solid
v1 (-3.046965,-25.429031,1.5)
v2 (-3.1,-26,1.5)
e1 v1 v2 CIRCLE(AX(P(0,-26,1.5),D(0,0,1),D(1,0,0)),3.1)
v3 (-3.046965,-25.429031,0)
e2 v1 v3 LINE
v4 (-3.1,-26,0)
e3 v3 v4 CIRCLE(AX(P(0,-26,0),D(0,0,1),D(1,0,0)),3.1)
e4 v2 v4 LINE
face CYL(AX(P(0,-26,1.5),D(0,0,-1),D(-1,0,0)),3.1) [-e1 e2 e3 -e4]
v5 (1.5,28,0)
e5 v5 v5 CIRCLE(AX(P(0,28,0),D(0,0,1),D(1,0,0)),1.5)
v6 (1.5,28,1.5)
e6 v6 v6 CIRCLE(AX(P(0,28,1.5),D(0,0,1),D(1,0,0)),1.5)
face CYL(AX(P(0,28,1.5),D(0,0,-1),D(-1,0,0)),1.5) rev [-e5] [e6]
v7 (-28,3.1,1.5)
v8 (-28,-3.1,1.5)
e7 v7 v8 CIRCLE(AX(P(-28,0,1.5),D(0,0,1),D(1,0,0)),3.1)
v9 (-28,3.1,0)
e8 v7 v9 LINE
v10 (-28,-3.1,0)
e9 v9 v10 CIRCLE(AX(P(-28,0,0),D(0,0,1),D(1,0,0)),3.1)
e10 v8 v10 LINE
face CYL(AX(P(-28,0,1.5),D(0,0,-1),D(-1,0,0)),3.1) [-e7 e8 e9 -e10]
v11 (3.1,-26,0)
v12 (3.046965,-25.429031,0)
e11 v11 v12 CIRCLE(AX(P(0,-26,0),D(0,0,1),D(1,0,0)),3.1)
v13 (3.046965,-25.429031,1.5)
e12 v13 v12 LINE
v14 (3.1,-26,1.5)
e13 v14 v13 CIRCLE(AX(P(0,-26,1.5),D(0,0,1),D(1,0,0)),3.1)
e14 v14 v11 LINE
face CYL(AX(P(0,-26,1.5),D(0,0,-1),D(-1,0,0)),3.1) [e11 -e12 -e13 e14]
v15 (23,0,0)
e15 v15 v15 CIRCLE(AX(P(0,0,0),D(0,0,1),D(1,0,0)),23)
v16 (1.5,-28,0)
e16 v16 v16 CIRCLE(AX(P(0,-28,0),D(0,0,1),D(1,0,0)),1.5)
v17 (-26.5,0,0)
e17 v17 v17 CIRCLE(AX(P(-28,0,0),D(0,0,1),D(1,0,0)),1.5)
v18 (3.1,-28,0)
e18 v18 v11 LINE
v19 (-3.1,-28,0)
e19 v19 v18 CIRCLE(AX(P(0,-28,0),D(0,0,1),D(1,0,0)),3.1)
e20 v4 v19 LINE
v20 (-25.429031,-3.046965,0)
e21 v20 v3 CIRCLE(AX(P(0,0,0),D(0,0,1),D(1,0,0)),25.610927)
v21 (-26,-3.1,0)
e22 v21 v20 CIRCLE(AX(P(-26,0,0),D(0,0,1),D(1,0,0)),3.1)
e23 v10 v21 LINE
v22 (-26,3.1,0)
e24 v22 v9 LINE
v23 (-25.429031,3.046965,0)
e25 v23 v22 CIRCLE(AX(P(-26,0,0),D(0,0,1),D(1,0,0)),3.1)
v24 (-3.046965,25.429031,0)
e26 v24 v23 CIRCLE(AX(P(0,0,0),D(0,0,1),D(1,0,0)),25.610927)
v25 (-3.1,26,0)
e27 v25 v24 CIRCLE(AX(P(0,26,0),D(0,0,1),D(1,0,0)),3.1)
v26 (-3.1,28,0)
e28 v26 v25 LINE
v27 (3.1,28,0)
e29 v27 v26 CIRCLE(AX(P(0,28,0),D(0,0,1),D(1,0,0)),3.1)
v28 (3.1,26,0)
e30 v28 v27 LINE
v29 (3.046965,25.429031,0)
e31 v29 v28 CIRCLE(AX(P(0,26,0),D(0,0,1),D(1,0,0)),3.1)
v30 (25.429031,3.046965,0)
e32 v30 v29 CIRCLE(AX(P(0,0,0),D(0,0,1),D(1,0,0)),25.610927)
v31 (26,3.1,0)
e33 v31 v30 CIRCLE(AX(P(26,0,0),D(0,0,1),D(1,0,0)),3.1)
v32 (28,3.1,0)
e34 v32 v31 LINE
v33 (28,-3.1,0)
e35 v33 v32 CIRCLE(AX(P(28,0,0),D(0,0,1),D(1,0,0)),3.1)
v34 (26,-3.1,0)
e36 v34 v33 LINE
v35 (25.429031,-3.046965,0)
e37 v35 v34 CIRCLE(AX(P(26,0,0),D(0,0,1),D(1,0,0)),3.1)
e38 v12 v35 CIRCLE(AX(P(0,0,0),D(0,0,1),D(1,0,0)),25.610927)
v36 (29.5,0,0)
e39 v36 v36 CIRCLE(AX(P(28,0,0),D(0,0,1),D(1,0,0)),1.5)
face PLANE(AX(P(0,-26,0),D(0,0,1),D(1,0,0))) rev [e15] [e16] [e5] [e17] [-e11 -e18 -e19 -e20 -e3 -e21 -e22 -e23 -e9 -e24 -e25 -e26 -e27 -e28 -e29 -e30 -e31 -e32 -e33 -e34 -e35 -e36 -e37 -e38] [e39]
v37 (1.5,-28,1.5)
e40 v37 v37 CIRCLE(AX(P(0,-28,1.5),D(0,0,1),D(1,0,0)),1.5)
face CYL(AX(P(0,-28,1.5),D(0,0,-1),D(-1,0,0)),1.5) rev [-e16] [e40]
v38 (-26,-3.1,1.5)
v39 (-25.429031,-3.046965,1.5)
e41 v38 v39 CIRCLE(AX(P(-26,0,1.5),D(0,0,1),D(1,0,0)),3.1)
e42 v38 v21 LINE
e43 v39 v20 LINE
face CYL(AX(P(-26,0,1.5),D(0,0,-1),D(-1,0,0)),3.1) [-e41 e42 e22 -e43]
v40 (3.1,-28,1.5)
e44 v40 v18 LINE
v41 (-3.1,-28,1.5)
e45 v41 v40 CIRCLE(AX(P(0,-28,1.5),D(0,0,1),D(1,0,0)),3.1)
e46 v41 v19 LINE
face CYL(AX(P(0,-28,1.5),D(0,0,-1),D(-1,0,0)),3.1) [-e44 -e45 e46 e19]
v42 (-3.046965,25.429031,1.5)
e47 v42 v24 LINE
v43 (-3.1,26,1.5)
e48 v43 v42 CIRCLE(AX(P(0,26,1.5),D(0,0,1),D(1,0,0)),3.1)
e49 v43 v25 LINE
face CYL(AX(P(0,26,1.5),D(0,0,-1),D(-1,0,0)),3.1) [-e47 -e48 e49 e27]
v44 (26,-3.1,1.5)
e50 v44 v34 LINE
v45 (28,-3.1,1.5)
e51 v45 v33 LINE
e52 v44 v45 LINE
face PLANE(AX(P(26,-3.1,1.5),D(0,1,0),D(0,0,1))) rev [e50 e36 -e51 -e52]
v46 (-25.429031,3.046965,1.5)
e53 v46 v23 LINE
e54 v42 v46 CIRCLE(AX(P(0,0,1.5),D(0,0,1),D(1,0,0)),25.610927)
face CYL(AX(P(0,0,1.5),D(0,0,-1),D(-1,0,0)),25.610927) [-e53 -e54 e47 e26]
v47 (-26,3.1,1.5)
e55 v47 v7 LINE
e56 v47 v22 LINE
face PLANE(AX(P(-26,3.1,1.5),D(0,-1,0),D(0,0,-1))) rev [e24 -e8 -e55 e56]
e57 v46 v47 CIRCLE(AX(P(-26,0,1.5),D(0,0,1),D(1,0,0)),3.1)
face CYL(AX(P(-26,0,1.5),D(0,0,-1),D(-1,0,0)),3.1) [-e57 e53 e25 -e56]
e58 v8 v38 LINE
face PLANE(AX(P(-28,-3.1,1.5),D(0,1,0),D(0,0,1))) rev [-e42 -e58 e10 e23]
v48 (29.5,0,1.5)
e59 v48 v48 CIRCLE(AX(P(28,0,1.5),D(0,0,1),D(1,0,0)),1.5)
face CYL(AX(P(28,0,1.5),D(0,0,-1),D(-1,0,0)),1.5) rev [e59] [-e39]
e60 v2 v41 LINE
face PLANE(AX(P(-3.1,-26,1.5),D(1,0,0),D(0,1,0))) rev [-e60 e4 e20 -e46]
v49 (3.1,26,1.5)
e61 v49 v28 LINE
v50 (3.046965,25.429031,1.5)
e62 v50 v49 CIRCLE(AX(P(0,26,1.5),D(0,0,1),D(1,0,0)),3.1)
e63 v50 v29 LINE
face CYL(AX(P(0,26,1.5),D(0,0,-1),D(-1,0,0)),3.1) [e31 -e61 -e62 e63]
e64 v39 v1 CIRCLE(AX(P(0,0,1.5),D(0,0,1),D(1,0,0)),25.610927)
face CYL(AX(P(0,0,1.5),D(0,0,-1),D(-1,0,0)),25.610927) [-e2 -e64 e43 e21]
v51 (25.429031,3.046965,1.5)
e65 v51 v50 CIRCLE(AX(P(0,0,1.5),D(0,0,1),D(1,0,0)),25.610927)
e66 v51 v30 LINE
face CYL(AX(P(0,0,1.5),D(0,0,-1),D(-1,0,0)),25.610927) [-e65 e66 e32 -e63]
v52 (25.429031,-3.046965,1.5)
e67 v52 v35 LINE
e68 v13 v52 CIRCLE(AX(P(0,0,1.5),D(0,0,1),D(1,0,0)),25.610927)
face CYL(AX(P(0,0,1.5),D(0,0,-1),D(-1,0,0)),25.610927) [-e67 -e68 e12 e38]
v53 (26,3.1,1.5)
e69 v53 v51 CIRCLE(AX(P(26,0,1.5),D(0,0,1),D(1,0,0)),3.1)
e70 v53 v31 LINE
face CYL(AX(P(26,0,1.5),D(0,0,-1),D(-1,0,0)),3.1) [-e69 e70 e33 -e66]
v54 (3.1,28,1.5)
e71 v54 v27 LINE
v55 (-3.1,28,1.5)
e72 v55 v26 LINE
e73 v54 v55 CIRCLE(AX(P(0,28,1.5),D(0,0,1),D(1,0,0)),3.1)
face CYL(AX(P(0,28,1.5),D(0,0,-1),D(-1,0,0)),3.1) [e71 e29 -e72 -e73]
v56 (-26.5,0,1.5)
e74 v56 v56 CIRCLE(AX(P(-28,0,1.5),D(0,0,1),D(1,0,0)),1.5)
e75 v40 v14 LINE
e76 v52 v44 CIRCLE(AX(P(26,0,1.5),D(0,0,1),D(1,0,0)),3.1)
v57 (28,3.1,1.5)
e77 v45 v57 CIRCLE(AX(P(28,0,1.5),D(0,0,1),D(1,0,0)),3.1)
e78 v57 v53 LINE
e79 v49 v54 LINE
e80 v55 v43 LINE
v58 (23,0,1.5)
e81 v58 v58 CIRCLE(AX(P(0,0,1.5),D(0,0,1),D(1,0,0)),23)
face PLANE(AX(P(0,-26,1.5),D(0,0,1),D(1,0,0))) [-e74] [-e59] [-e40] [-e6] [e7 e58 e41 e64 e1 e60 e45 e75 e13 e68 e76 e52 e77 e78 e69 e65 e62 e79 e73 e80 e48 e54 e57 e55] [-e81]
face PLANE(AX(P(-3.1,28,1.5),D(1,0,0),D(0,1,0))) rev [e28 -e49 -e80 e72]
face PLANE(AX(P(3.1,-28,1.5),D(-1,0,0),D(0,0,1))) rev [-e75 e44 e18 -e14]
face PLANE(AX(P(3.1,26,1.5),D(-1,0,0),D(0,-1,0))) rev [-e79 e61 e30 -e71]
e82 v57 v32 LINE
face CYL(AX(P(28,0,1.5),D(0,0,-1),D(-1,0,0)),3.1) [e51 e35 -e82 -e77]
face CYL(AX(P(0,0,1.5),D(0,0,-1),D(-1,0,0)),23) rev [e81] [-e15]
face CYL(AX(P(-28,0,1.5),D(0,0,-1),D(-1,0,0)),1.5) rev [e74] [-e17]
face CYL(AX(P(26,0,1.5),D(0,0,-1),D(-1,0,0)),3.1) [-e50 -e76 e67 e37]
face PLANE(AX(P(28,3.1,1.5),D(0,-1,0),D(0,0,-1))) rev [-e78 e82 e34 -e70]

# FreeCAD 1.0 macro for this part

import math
import FreeCAD as App
import Part
import Sketcher
Q = App.Units.Quantity

doc = App.newDocument("Part")
body = doc.addObject("PartDesign::Body", "Body")

# Sketch on XY plane
sketch1 = body.newObject("Sketcher::SketchObject", "Sketch")
sketch1.AttachmentSupport = (doc.getObject("XY_Plane"), [""])
sketch1.MapMode = "FlatFace"
sketch1.addGeometry(Part.LineSegment(App.Vector(26, -3.1, 0), App.Vector(28, -3.1, 0)), False)
sketch1.addGeometry(Part.ArcOfCircle(Part.Circle(App.Vector(28, 0, 0), App.Vector(0, 0, 1), 3.1), math.radians(-90), math.radians(90)), False)
sketch1.addGeometry(Part.LineSegment(App.Vector(28, 3.1, 0), App.Vector(26, 3.1, 0)), False)
sketch1.addGeometry(Part.ArcOfCircle(Part.Circle(App.Vector(26, 0, 0), App.Vector(0, 0, 1), 3.1), math.radians(90), math.radians(100.613541)), False)
sketch1.addGeometry(Part.ArcOfCircle(Part.Circle(App.Vector(0, 0, 0), App.Vector(0, 0, 1), 25.610927), math.radians(6.832736), math.radians(83.167264)), False)
sketch1.addGeometry(Part.ArcOfCircle(Part.Circle(App.Vector(0, 26, 0), App.Vector(0, 0, 1), 3.1), math.radians(-10.613541), math.radians(0)), False)
sketch1.addGeometry(Part.LineSegment(App.Vector(3.1, 26, 0), App.Vector(3.1, 28, 0)), False)
sketch1.addGeometry(Part.ArcOfCircle(Part.Circle(App.Vector(0, 28, 0), App.Vector(0, 0, 1), 3.1), math.radians(0), math.radians(180)), False)
sketch1.addGeometry(Part.LineSegment(App.Vector(-3.1, 28, 0), App.Vector(-3.1, 26, 0)), False)
sketch1.addGeometry(Part.ArcOfCircle(Part.Circle(App.Vector(0, 26, 0), App.Vector(0, 0, 1), 3.1), math.radians(-180), math.radians(-169.386459)), False)
sketch1.addGeometry(Part.ArcOfCircle(Part.Circle(App.Vector(0, 0, 0), App.Vector(0, 0, 1), 25.610927), math.radians(96.832736), math.radians(173.167264)), False)
sketch1.addGeometry(Part.ArcOfCircle(Part.Circle(App.Vector(-26, 0, 0), App.Vector(0, 0, 1), 3.1), math.radians(79.386459), math.radians(90)), False)
sketch1.addGeometry(Part.LineSegment(App.Vector(-26, 3.1, 0), App.Vector(-28, 3.1, 0)), False)
sketch1.addGeometry(Part.ArcOfCircle(Part.Circle(App.Vector(-28, 0, 0), App.Vector(0, 0, 1), 3.1), math.radians(90), math.radians(270)), False)
sketch1.addGeometry(Part.LineSegment(App.Vector(-28, -3.1, 0), App.Vector(-26, -3.1, 0)), False)
sketch1.addGeometry(Part.ArcOfCircle(Part.Circle(App.Vector(-26, 0, 0), App.Vector(0, 0, 1), 3.1), math.radians(-90), math.radians(-79.386459)), False)
sketch1.addGeometry(Part.ArcOfCircle(Part.Circle(App.Vector(0, 0, 0), App.Vector(0, 0, 1), 25.610927), math.radians(-173.167264), math.radians(-96.832736)), False)
sketch1.addGeometry(Part.ArcOfCircle(Part.Circle(App.Vector(0, -26, 0), App.Vector(0, 0, 1), 3.1), math.radians(169.386459), math.radians(180)), False)
sketch1.addGeometry(Part.LineSegment(App.Vector(-3.1, -26, 0), App.Vector(-3.1, -28, 0)), False)
sketch1.addGeometry(Part.ArcOfCircle(Part.Circle(App.Vector(0, -28, 0), App.Vector(0, 0, 1), 3.1), math.radians(180), math.radians(360)), False)
sketch1.addGeometry(Part.LineSegment(App.Vector(3.1, -28, 0), App.Vector(3.1, -26, 0)), False)
sketch1.addGeometry(Part.ArcOfCircle(Part.Circle(App.Vector(0, -26, 0), App.Vector(0, 0, 1), 3.1), math.radians(0), math.radians(10.613541)), False)
sketch1.addGeometry(Part.ArcOfCircle(Part.Circle(App.Vector(0, 0, 0), App.Vector(0, 0, 1), 25.610927), math.radians(-83.167264), math.radians(-6.832736)), False)
sketch1.addGeometry(Part.ArcOfCircle(Part.Circle(App.Vector(26, 0, 0), App.Vector(0, 0, 1), 3.1), math.radians(-100.613541), math.radians(-90)), False)
sketch1.addGeometry(Part.Circle(App.Vector(0, -28, 0), App.Vector(0, 0, 1), 1.5), False)
sketch1.addGeometry(Part.Circle(App.Vector(-28, 0, 0), App.Vector(0, 0, 1), 1.5), False)
sketch1.addGeometry(Part.Circle(App.Vector(0, 0, 0), App.Vector(0, 0, 1), 23), False)
sketch1.addGeometry(Part.Circle(App.Vector(28, 0, 0), App.Vector(0, 0, 1), 1.5), False)
sketch1.addGeometry(Part.Circle(App.Vector(0, 28, 0), App.Vector(0, 0, 1), 1.5), False)
sketch1.addConstraint(Sketcher.Constraint("Tangent", 0, 2, 1, 1))
sketch1.addConstraint(Sketcher.Constraint("Tangent", 1, 2, 2, 1))
sketch1.addConstraint(Sketcher.Constraint("Tangent", 2, 2, 3, 1))
sketch1.addConstraint(Sketcher.Constraint("Coincident", 3, 2, 4, 1))
sketch1.addConstraint(Sketcher.Constraint("Coincident", 4, 2, 5, 1))
sketch1.addConstraint(Sketcher.Constraint("Tangent", 5, 2, 6, 1))
sketch1.addConstraint(Sketcher.Constraint("Tangent", 6, 2, 7, 1))
sketch1.addConstraint(Sketcher.Constraint("Tangent", 7, 2, 8, 1))
sketch1.addConstraint(Sketcher.Constraint("Tangent", 8, 2, 9, 1))
sketch1.addConstraint(Sketcher.Constraint("Coincident", 9, 2, 10, 1))
sketch1.addConstraint(Sketcher.Constraint("Coincident", 10, 2, 11, 1))
sketch1.addConstraint(Sketcher.Constraint("Tangent", 11, 2, 12, 1))
sketch1.addConstraint(Sketcher.Constraint("Tangent", 12, 2, 13, 1))
sketch1.addConstraint(Sketcher.Constraint("Tangent", 13, 2, 14, 1))
sketch1.addConstraint(Sketcher.Constraint("Tangent", 14, 2, 15, 1))
sketch1.addConstraint(Sketcher.Constraint("Coincident", 15, 2, 16, 1))
sketch1.addConstraint(Sketcher.Constraint("Coincident", 16, 2, 17, 1))
sketch1.addConstraint(Sketcher.Constraint("Tangent", 17, 2, 18, 1))
sketch1.addConstraint(Sketcher.Constraint("Tangent", 18, 2, 19, 1))
sketch1.addConstraint(Sketcher.Constraint("Tangent", 19, 2, 20, 1))
sketch1.addConstraint(Sketcher.Constraint("Tangent", 20, 2, 21, 1))
sketch1.addConstraint(Sketcher.Constraint("Coincident", 21, 2, 22, 1))
sketch1.addConstraint(Sketcher.Constraint("Coincident", 22, 2, 23, 1))
sketch1.addConstraint(Sketcher.Constraint("Tangent", 23, 2, 0, 1))
sketch1.addConstraint(Sketcher.Constraint("Horizontal", 0))
sketch1.addConstraint(Sketcher.Constraint("Horizontal", 2))
sketch1.addConstraint(Sketcher.Constraint("Vertical", 6))
sketch1.addConstraint(Sketcher.Constraint("Vertical", 8))
sketch1.addConstraint(Sketcher.Constraint("Horizontal", 12))
sketch1.addConstraint(Sketcher.Constraint("Horizontal", 14))
sketch1.addConstraint(Sketcher.Constraint("Vertical", 18))
sketch1.addConstraint(Sketcher.Constraint("Vertical", 20))
sketch1.addConstraint(Sketcher.Constraint("Coincident", 4, 3, -1, 1))
sketch1.addConstraint(Sketcher.Constraint("Coincident", 10, 3, -1, 1))
sketch1.addConstraint(Sketcher.Constraint("Coincident", 16, 3, -1, 1))
sketch1.addConstraint(Sketcher.Constraint("Coincident", 22, 3, -1, 1))
sketch1.addConstraint(Sketcher.Constraint("Coincident", 26, 3, -1, 1))
sketch1.addConstraint(Sketcher.Constraint("Coincident", 9, 3, 5, 3))
sketch1.addConstraint(Sketcher.Constraint("Coincident", 15, 3, 11, 3))
sketch1.addConstraint(Sketcher.Constraint("Coincident", 21, 3, 17, 3))
sketch1.addConstraint(Sketcher.Constraint("Coincident", 23, 3, 3, 3))
sketch1.addConstraint(Sketcher.Constraint("Coincident", 24, 3, 19, 3))
sketch1.addConstraint(Sketcher.Constraint("Coincident", 25, 3, 13, 3))
sketch1.addConstraint(Sketcher.Constraint("Coincident", 27, 3, 1, 3))
sketch1.addConstraint(Sketcher.Constraint("Coincident", 28, 3, 7, 3))
sketch1.addConstraint(Sketcher.Constraint("Equal", 1, 3))
sketch1.addConstraint(Sketcher.Constraint("Equal", 3, 5))
sketch1.addConstraint(Sketcher.Constraint("Equal", 5, 7))
sketch1.addConstraint(Sketcher.Constraint("Equal", 4, 10))
sketch1.addConstraint(Sketcher.Constraint("Equal", 9, 11))
sketch1.addConstraint(Sketcher.Constraint("Equal", 11, 13))
sketch1.addConstraint(Sketcher.Constraint("Equal", 10, 16))
sketch1.addConstraint(Sketcher.Constraint("Equal", 15, 17))
sketch1.addConstraint(Sketcher.Constraint("Equal", 17, 19))
sketch1.addConstraint(Sketcher.Constraint("Equal", 16, 22))
sketch1.addConstraint(Sketcher.Constraint("Equal", 24, 25))
sketch1.addConstraint(Sketcher.Constraint("Equal", 25, 27))
sketch1.addConstraint(Sketcher.Constraint("Equal", 27, 28))
sketch1.addConstraint(Sketcher.Constraint("Symmetric", 3, 3, 11, 3, -1, 1))
sketch1.addConstraint(Sketcher.Constraint("Symmetric", 5, 3, 17, 3, -1, 1))
sketch1.addConstraint(Sketcher.Constraint("Symmetric", 1, 3, 13, 3, -2))
sketch1.addConstraint(Sketcher.Constraint("Symmetric", 7, 3, 19, 3, -1))
sketch1.addConstraint(Sketcher.Constraint("Equal", 14, 6))
sketch1.addConstraint(Sketcher.Constraint("Diameter", 24, Q("3 mm")))
sketch1.addConstraint(Sketcher.Constraint("Diameter", 26, Q("46 mm")))
sketch1.addConstraint(Sketcher.Constraint("Radius", 1, Q("3.1 mm")))
sketch1.addConstraint(Sketcher.Constraint("DistanceX", 0, 1, 0, 2, Q("2 mm")))
sketch1.addConstraint(Sketcher.Constraint("DistanceX", -1, 1, 1, 3, Q("28 mm")))
sketch1.addConstraint(Sketcher.Constraint("DistanceY", -1, 1, 5, 3, Q("26 mm")))
sketch1.addConstraint(Sketcher.Constraint("Radius", 4, Q("25.610927 mm")))
pad1 = body.newObject("PartDesign::Pad", "Pad")
pad1.Profile = sketch1
pad1.Length = 1.5

doc.recompute()
